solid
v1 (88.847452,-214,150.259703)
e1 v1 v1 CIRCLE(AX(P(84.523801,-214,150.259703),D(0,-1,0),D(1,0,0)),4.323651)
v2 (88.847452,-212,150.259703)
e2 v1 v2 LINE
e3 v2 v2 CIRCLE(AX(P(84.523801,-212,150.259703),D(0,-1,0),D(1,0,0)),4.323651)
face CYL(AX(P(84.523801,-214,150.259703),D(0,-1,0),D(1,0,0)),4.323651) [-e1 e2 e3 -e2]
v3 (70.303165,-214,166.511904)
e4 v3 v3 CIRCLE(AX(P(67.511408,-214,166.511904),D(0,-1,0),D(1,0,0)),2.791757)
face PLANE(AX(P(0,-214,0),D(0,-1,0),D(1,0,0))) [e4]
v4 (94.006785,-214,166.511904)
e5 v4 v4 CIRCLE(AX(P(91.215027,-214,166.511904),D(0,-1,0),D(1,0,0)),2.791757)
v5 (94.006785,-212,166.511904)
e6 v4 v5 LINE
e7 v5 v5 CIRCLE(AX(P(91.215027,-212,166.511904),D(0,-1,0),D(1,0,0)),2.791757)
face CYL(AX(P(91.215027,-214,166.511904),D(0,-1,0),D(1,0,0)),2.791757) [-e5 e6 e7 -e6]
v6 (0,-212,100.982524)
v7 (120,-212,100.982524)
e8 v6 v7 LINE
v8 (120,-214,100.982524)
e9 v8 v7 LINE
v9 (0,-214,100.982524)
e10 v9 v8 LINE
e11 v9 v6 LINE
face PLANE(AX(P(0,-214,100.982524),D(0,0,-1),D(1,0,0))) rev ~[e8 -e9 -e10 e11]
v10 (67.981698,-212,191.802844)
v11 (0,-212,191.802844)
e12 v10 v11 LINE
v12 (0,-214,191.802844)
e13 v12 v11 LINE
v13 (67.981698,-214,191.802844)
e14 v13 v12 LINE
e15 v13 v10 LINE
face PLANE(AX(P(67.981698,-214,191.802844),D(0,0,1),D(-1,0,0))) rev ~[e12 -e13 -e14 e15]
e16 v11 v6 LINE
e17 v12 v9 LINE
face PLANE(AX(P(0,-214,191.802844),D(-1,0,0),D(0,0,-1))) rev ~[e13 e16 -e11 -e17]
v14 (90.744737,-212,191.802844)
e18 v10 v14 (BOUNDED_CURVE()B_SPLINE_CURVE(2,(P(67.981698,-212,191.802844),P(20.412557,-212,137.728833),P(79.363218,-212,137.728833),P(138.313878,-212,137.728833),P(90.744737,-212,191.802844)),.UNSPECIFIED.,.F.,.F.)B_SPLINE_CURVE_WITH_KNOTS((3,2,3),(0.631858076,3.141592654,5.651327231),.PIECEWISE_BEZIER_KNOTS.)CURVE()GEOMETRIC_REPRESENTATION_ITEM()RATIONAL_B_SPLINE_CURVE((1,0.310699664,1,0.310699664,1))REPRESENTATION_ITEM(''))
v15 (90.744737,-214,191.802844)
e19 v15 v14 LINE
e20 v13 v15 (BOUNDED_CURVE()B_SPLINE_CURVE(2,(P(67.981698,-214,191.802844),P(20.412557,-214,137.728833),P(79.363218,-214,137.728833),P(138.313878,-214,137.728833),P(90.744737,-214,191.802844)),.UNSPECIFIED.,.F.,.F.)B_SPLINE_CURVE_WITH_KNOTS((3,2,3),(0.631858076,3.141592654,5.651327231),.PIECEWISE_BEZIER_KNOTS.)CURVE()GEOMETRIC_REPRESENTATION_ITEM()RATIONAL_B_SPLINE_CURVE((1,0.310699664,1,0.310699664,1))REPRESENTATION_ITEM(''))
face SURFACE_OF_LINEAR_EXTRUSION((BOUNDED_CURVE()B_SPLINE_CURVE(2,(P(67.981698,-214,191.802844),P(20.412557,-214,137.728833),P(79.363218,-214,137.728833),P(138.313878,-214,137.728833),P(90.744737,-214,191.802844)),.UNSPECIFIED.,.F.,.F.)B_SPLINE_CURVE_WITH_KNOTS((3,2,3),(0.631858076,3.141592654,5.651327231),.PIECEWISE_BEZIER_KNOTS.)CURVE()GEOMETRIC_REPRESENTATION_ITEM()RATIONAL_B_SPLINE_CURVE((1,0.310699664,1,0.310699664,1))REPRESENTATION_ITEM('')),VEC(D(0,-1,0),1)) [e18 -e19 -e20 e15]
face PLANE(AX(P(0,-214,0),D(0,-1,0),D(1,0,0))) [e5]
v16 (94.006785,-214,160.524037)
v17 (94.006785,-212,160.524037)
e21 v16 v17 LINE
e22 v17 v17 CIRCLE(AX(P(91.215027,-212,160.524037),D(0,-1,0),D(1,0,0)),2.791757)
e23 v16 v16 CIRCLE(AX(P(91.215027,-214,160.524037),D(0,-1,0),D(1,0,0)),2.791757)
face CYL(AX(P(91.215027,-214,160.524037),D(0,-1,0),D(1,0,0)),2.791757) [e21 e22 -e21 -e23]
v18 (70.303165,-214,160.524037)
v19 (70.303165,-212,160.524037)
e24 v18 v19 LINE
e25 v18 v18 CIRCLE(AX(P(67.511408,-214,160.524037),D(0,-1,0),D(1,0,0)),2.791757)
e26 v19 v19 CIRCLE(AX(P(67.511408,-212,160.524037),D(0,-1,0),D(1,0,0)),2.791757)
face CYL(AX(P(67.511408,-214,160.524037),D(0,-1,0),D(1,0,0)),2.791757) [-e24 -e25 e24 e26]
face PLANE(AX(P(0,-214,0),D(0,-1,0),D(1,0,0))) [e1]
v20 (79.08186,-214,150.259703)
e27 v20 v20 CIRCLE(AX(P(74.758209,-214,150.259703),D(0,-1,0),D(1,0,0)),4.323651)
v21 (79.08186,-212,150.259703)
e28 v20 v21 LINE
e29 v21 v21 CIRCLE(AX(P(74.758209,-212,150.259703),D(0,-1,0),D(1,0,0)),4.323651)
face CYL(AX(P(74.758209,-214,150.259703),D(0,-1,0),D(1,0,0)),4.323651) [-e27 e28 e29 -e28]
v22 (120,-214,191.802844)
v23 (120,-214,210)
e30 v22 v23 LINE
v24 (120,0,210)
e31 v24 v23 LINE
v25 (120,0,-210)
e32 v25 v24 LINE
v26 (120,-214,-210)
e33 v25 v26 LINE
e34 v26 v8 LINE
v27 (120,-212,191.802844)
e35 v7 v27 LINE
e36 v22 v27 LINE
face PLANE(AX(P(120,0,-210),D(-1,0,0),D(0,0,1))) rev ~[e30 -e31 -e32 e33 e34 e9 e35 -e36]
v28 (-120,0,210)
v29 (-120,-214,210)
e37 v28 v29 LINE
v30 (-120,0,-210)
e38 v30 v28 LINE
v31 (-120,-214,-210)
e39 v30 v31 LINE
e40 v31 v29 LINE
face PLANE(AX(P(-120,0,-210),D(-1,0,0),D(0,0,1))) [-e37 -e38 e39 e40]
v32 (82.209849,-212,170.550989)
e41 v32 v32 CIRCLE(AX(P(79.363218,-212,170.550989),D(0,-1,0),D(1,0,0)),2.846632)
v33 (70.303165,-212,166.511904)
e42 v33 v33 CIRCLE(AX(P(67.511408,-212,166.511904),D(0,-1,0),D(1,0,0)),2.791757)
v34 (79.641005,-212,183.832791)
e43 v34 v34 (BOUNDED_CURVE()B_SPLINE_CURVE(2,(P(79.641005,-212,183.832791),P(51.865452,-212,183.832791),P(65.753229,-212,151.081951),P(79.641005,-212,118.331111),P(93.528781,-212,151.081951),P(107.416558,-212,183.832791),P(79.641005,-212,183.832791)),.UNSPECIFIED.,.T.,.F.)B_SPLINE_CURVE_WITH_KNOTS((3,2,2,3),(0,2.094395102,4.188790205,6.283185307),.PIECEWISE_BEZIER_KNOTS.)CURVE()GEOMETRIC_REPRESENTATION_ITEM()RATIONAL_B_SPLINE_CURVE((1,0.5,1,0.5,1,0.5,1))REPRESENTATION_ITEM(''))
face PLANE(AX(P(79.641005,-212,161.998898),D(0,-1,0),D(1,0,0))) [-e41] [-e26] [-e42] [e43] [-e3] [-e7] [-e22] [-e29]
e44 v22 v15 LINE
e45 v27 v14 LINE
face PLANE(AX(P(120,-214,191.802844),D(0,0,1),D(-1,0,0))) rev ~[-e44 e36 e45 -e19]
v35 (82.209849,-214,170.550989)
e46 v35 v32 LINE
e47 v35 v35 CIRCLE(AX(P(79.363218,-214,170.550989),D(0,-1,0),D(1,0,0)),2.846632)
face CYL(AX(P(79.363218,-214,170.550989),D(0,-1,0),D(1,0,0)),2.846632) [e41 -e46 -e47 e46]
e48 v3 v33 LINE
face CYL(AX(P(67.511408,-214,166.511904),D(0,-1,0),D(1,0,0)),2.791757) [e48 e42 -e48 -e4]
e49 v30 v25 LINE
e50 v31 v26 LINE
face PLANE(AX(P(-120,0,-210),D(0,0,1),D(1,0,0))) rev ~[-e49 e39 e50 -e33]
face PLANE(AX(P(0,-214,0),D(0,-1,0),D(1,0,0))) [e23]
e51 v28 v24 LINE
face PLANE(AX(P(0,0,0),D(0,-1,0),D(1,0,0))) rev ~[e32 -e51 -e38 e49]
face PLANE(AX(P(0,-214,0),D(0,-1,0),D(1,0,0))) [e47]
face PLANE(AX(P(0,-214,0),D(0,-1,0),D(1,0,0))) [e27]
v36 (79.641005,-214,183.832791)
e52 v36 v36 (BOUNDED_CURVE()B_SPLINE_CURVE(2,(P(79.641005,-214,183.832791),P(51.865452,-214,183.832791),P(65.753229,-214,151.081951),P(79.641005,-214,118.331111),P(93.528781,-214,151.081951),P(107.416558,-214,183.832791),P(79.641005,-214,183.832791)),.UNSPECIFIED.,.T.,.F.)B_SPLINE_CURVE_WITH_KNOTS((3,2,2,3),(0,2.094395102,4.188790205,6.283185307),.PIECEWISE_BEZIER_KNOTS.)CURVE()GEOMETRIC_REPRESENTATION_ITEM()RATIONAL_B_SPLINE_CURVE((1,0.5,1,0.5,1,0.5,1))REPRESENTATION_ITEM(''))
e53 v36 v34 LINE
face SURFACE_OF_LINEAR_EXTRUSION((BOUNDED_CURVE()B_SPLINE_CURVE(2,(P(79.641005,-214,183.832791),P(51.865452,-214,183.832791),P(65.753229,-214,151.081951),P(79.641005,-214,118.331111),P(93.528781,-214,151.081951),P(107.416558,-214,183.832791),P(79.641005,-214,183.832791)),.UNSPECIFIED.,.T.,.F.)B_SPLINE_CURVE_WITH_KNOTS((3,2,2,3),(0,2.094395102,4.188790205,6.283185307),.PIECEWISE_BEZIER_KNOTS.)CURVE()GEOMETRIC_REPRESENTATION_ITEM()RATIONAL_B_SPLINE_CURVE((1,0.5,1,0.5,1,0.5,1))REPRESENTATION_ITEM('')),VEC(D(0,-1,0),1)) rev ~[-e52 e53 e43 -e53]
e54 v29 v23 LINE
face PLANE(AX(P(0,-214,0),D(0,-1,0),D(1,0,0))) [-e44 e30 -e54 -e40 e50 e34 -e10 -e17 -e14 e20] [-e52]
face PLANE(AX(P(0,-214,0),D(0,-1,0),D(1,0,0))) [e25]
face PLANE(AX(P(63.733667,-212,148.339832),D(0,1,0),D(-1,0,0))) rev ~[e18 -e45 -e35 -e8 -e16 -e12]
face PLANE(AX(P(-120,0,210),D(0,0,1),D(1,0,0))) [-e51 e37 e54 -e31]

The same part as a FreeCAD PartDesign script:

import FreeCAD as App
import Part
import Sketcher
from FreeCAD import Vector
Q = App.Units.Quantity

doc = App.newDocument("Part")
body = doc.addObject("PartDesign::Body", "Body")

# Sketch on XZ plane
sketch1 = doc.addObject("Sketcher::SketchObject", "Sketch")
body.addObject(sketch1)
sketch1.AttachmentSupport = (doc.XZ_Plane, [""])
sketch1.MapMode = "FlatFace"
sketch1.addGeometry([
    Part.LineSegment(Vector(-120, 210, 0), Vector(-120, -210, 0)),
    Part.LineSegment(Vector(-120, -210, 0), Vector(120, -210, 0)),
    Part.LineSegment(Vector(120, -210, 0), Vector(120, 210, 0)),
    Part.LineSegment(Vector(120, 210, 0), Vector(-120, 210, 0)),
], False)
sketch1.addConstraint([
    Sketcher.Constraint("Coincident", 0, 2, 1, 1),
    Sketcher.Constraint("Coincident", 1, 2, 2, 1),
    Sketcher.Constraint("Coincident", 2, 2, 3, 1),
    Sketcher.Constraint("Coincident", 3, 2, 0, 1),
    Sketcher.Constraint("Vertical", 0),
    Sketcher.Constraint("Horizontal", 1),
    Sketcher.Constraint("Vertical", 2),
    Sketcher.Constraint("Horizontal", 3),
    Sketcher.Constraint("Symmetric", 0, 2, 2, 2, -1, 1),
    Sketcher.Constraint("DistanceX", 1, 1, 1, 2, Q("240 mm")),
    Sketcher.Constraint("DistanceY", 0, 2, 0, 1, Q("420 mm")),
])
pad1 = doc.addObject("PartDesign::Pad", "Pad")
body.addObject(pad1)
pad1.Profile = sketch1
pad1.Length = 214

# Sketch on XZ plane
sketch2 = doc.addObject("Sketcher::SketchObject", "Sketch001")
body.addObject(sketch2)
sketch2.AttachmentSupport = (doc.XZ_Plane, [""])
sketch2.MapMode = "FlatFace"
sketch2.AttachmentOffset = App.Placement(Vector(0, 0, 214), App.Rotation())
sketch2.addGeometry([
    Part.BSplineCurve([Vector(79.641005, 183.832791, 0), Vector(51.865452, 183.832791, 0), Vector(65.753229, 151.081951, 0), Vector(79.641005, 118.331111, 0), Vector(93.528781, 151.081951, 0), Vector(107.416558, 183.832791, 0), Vector(79.641005, 183.832791, 0)], [3, 2, 2, 3], [0, 2.094395102, 4.188790205, 6.283185307], False, 2, [1, 0.5, 1, 0.5, 1, 0.5, 1], False),  # 0
    Part.Circle(Vector(74.758209, 150.259703, 0), Vector(0, 0, 1), 4.323651),  # 1
    Part.Circle(Vector(84.523801, 150.259703, 0), Vector(0, 0, 1), 4.323651),  # 2
    Part.Circle(Vector(67.511408, 160.524037, 0), Vector(0, 0, 1), 2.791757),  # 3
    Part.Circle(Vector(67.511408, 166.511904, 0), Vector(0, 0, 1), 2.791757),  # 4
    Part.Circle(Vector(79.363218, 170.550989, 0), Vector(0, 0, 1), 2.846632),  # 5
    Part.Circle(Vector(91.215027, 160.524037, 0), Vector(0, 0, 1), 2.791757),  # 6
    Part.Circle(Vector(91.215027, 166.511904, 0), Vector(0, 0, 1), 2.791757),  # 7
    Part.BSplineCurve([Vector(67.981698, 191.802844, 0), Vector(20.412557, 137.728833, 0), Vector(79.363218, 137.728833, 0), Vector(138.313878, 137.728833, 0), Vector(90.744737, 191.802844, 0)], [3, 2, 3], [0.631858076, 3.141592654, 5.651327231], False, 2, [1, 0.310699664, 1, 0.310699664, 1], False),  # 8
    Part.LineSegment(Vector(67.981698, 191.802844, 0), Vector(0, 191.802844, 0)),  # 9
    Part.LineSegment(Vector(0, 191.802844, 0), Vector(0, 100.982524, 0)),  # 10
    Part.LineSegment(Vector(0, 100.982524, 0), Vector(120, 100.982524, 0)),  # 11
    Part.LineSegment(Vector(120, 100.982524, 0), Vector(120, 191.802844, 0)),  # 12
    Part.LineSegment(Vector(120, 191.802844, 0), Vector(90.744737, 191.802844, 0)),  # 13
], False)
sketch2.addConstraint([
    Sketcher.Constraint("Block", 0),
    Sketcher.Constraint("Block", 8),
    Sketcher.Constraint("Coincident", 8, 1, 9, 1),
    Sketcher.Constraint("Coincident", 9, 2, 10, 1),
    Sketcher.Constraint("Coincident", 10, 2, 11, 1),
    Sketcher.Constraint("Coincident", 11, 2, 12, 1),
    Sketcher.Constraint("Coincident", 12, 2, 13, 1),
    Sketcher.Constraint("Coincident", 13, 2, 8, 2),
    Sketcher.Constraint("Horizontal", 9),
    Sketcher.Constraint("Vertical", 10),
    Sketcher.Constraint("Horizontal", 11),
    Sketcher.Constraint("Vertical", 12),
    Sketcher.Constraint("Horizontal", 13),
    Sketcher.Constraint("Equal", 1, 2),
    Sketcher.Constraint("Equal", 3, 4),
    Sketcher.Constraint("Equal", 4, 6),
    Sketcher.Constraint("Equal", 6, 7),
    Sketcher.Constraint("PointOnObject", 9, 2, -2),
    Sketcher.Constraint("Horizontal", 1, 3, 2, 3),
    Sketcher.Constraint("Horizontal", 3, 3, 6, 3),
    Sketcher.Constraint("Horizontal", 4, 3, 7, 3),
    Sketcher.Constraint("Vertical", 3, 3, 4, 3),
    Sketcher.Constraint("Vertical", 6, 3, 7, 3),
    Sketcher.Constraint("DistanceX", 11, 1, 11, 2, Q("120 mm")),
    Sketcher.Constraint("Diameter", 1, Q("8.647302 mm")),
    Sketcher.Constraint("Diameter", 3, Q("5.583514 mm")),
    Sketcher.Constraint("Diameter", 5, Q("5.693263 mm")),
    Sketcher.Constraint("DistanceY", 10, 2, 10, 1, Q("90.82032 mm")),
    Sketcher.Constraint("DistanceX", -1, 1, 2, 3, Q("84.523801 mm")),
    Sketcher.Constraint("DistanceX", 3, 3, 1, 3, Q("7.246802 mm")),
    Sketcher.Constraint("DistanceY", 1, 3, 4, 3, Q("16.252201 mm")),
    Sketcher.Constraint("DistanceX", -1, 1, 1, 3, Q("74.758209 mm")),
    Sketcher.Constraint("DistanceY", -1, 1, 5, 3, Q("170.550989 mm")),
    Sketcher.Constraint("DistanceX", 4, 3, 5, 3, Q("11.85181 mm")),
    Sketcher.Constraint("DistanceX", 5, 3, 6, 3, Q("11.85181 mm")),
    Sketcher.Constraint("DistanceY", 4, 3, 9, 2, Q("25.29094 mm")),
    Sketcher.Constraint("DistanceY", -1, 1, 3, 3, Q("160.524037 mm")),
])
pocket1 = doc.addObject("PartDesign::Pocket", "Pocket")
body.addObject(pocket1)
pocket1.Profile = sketch2
pocket1.Length = 2

doc.recompute()
